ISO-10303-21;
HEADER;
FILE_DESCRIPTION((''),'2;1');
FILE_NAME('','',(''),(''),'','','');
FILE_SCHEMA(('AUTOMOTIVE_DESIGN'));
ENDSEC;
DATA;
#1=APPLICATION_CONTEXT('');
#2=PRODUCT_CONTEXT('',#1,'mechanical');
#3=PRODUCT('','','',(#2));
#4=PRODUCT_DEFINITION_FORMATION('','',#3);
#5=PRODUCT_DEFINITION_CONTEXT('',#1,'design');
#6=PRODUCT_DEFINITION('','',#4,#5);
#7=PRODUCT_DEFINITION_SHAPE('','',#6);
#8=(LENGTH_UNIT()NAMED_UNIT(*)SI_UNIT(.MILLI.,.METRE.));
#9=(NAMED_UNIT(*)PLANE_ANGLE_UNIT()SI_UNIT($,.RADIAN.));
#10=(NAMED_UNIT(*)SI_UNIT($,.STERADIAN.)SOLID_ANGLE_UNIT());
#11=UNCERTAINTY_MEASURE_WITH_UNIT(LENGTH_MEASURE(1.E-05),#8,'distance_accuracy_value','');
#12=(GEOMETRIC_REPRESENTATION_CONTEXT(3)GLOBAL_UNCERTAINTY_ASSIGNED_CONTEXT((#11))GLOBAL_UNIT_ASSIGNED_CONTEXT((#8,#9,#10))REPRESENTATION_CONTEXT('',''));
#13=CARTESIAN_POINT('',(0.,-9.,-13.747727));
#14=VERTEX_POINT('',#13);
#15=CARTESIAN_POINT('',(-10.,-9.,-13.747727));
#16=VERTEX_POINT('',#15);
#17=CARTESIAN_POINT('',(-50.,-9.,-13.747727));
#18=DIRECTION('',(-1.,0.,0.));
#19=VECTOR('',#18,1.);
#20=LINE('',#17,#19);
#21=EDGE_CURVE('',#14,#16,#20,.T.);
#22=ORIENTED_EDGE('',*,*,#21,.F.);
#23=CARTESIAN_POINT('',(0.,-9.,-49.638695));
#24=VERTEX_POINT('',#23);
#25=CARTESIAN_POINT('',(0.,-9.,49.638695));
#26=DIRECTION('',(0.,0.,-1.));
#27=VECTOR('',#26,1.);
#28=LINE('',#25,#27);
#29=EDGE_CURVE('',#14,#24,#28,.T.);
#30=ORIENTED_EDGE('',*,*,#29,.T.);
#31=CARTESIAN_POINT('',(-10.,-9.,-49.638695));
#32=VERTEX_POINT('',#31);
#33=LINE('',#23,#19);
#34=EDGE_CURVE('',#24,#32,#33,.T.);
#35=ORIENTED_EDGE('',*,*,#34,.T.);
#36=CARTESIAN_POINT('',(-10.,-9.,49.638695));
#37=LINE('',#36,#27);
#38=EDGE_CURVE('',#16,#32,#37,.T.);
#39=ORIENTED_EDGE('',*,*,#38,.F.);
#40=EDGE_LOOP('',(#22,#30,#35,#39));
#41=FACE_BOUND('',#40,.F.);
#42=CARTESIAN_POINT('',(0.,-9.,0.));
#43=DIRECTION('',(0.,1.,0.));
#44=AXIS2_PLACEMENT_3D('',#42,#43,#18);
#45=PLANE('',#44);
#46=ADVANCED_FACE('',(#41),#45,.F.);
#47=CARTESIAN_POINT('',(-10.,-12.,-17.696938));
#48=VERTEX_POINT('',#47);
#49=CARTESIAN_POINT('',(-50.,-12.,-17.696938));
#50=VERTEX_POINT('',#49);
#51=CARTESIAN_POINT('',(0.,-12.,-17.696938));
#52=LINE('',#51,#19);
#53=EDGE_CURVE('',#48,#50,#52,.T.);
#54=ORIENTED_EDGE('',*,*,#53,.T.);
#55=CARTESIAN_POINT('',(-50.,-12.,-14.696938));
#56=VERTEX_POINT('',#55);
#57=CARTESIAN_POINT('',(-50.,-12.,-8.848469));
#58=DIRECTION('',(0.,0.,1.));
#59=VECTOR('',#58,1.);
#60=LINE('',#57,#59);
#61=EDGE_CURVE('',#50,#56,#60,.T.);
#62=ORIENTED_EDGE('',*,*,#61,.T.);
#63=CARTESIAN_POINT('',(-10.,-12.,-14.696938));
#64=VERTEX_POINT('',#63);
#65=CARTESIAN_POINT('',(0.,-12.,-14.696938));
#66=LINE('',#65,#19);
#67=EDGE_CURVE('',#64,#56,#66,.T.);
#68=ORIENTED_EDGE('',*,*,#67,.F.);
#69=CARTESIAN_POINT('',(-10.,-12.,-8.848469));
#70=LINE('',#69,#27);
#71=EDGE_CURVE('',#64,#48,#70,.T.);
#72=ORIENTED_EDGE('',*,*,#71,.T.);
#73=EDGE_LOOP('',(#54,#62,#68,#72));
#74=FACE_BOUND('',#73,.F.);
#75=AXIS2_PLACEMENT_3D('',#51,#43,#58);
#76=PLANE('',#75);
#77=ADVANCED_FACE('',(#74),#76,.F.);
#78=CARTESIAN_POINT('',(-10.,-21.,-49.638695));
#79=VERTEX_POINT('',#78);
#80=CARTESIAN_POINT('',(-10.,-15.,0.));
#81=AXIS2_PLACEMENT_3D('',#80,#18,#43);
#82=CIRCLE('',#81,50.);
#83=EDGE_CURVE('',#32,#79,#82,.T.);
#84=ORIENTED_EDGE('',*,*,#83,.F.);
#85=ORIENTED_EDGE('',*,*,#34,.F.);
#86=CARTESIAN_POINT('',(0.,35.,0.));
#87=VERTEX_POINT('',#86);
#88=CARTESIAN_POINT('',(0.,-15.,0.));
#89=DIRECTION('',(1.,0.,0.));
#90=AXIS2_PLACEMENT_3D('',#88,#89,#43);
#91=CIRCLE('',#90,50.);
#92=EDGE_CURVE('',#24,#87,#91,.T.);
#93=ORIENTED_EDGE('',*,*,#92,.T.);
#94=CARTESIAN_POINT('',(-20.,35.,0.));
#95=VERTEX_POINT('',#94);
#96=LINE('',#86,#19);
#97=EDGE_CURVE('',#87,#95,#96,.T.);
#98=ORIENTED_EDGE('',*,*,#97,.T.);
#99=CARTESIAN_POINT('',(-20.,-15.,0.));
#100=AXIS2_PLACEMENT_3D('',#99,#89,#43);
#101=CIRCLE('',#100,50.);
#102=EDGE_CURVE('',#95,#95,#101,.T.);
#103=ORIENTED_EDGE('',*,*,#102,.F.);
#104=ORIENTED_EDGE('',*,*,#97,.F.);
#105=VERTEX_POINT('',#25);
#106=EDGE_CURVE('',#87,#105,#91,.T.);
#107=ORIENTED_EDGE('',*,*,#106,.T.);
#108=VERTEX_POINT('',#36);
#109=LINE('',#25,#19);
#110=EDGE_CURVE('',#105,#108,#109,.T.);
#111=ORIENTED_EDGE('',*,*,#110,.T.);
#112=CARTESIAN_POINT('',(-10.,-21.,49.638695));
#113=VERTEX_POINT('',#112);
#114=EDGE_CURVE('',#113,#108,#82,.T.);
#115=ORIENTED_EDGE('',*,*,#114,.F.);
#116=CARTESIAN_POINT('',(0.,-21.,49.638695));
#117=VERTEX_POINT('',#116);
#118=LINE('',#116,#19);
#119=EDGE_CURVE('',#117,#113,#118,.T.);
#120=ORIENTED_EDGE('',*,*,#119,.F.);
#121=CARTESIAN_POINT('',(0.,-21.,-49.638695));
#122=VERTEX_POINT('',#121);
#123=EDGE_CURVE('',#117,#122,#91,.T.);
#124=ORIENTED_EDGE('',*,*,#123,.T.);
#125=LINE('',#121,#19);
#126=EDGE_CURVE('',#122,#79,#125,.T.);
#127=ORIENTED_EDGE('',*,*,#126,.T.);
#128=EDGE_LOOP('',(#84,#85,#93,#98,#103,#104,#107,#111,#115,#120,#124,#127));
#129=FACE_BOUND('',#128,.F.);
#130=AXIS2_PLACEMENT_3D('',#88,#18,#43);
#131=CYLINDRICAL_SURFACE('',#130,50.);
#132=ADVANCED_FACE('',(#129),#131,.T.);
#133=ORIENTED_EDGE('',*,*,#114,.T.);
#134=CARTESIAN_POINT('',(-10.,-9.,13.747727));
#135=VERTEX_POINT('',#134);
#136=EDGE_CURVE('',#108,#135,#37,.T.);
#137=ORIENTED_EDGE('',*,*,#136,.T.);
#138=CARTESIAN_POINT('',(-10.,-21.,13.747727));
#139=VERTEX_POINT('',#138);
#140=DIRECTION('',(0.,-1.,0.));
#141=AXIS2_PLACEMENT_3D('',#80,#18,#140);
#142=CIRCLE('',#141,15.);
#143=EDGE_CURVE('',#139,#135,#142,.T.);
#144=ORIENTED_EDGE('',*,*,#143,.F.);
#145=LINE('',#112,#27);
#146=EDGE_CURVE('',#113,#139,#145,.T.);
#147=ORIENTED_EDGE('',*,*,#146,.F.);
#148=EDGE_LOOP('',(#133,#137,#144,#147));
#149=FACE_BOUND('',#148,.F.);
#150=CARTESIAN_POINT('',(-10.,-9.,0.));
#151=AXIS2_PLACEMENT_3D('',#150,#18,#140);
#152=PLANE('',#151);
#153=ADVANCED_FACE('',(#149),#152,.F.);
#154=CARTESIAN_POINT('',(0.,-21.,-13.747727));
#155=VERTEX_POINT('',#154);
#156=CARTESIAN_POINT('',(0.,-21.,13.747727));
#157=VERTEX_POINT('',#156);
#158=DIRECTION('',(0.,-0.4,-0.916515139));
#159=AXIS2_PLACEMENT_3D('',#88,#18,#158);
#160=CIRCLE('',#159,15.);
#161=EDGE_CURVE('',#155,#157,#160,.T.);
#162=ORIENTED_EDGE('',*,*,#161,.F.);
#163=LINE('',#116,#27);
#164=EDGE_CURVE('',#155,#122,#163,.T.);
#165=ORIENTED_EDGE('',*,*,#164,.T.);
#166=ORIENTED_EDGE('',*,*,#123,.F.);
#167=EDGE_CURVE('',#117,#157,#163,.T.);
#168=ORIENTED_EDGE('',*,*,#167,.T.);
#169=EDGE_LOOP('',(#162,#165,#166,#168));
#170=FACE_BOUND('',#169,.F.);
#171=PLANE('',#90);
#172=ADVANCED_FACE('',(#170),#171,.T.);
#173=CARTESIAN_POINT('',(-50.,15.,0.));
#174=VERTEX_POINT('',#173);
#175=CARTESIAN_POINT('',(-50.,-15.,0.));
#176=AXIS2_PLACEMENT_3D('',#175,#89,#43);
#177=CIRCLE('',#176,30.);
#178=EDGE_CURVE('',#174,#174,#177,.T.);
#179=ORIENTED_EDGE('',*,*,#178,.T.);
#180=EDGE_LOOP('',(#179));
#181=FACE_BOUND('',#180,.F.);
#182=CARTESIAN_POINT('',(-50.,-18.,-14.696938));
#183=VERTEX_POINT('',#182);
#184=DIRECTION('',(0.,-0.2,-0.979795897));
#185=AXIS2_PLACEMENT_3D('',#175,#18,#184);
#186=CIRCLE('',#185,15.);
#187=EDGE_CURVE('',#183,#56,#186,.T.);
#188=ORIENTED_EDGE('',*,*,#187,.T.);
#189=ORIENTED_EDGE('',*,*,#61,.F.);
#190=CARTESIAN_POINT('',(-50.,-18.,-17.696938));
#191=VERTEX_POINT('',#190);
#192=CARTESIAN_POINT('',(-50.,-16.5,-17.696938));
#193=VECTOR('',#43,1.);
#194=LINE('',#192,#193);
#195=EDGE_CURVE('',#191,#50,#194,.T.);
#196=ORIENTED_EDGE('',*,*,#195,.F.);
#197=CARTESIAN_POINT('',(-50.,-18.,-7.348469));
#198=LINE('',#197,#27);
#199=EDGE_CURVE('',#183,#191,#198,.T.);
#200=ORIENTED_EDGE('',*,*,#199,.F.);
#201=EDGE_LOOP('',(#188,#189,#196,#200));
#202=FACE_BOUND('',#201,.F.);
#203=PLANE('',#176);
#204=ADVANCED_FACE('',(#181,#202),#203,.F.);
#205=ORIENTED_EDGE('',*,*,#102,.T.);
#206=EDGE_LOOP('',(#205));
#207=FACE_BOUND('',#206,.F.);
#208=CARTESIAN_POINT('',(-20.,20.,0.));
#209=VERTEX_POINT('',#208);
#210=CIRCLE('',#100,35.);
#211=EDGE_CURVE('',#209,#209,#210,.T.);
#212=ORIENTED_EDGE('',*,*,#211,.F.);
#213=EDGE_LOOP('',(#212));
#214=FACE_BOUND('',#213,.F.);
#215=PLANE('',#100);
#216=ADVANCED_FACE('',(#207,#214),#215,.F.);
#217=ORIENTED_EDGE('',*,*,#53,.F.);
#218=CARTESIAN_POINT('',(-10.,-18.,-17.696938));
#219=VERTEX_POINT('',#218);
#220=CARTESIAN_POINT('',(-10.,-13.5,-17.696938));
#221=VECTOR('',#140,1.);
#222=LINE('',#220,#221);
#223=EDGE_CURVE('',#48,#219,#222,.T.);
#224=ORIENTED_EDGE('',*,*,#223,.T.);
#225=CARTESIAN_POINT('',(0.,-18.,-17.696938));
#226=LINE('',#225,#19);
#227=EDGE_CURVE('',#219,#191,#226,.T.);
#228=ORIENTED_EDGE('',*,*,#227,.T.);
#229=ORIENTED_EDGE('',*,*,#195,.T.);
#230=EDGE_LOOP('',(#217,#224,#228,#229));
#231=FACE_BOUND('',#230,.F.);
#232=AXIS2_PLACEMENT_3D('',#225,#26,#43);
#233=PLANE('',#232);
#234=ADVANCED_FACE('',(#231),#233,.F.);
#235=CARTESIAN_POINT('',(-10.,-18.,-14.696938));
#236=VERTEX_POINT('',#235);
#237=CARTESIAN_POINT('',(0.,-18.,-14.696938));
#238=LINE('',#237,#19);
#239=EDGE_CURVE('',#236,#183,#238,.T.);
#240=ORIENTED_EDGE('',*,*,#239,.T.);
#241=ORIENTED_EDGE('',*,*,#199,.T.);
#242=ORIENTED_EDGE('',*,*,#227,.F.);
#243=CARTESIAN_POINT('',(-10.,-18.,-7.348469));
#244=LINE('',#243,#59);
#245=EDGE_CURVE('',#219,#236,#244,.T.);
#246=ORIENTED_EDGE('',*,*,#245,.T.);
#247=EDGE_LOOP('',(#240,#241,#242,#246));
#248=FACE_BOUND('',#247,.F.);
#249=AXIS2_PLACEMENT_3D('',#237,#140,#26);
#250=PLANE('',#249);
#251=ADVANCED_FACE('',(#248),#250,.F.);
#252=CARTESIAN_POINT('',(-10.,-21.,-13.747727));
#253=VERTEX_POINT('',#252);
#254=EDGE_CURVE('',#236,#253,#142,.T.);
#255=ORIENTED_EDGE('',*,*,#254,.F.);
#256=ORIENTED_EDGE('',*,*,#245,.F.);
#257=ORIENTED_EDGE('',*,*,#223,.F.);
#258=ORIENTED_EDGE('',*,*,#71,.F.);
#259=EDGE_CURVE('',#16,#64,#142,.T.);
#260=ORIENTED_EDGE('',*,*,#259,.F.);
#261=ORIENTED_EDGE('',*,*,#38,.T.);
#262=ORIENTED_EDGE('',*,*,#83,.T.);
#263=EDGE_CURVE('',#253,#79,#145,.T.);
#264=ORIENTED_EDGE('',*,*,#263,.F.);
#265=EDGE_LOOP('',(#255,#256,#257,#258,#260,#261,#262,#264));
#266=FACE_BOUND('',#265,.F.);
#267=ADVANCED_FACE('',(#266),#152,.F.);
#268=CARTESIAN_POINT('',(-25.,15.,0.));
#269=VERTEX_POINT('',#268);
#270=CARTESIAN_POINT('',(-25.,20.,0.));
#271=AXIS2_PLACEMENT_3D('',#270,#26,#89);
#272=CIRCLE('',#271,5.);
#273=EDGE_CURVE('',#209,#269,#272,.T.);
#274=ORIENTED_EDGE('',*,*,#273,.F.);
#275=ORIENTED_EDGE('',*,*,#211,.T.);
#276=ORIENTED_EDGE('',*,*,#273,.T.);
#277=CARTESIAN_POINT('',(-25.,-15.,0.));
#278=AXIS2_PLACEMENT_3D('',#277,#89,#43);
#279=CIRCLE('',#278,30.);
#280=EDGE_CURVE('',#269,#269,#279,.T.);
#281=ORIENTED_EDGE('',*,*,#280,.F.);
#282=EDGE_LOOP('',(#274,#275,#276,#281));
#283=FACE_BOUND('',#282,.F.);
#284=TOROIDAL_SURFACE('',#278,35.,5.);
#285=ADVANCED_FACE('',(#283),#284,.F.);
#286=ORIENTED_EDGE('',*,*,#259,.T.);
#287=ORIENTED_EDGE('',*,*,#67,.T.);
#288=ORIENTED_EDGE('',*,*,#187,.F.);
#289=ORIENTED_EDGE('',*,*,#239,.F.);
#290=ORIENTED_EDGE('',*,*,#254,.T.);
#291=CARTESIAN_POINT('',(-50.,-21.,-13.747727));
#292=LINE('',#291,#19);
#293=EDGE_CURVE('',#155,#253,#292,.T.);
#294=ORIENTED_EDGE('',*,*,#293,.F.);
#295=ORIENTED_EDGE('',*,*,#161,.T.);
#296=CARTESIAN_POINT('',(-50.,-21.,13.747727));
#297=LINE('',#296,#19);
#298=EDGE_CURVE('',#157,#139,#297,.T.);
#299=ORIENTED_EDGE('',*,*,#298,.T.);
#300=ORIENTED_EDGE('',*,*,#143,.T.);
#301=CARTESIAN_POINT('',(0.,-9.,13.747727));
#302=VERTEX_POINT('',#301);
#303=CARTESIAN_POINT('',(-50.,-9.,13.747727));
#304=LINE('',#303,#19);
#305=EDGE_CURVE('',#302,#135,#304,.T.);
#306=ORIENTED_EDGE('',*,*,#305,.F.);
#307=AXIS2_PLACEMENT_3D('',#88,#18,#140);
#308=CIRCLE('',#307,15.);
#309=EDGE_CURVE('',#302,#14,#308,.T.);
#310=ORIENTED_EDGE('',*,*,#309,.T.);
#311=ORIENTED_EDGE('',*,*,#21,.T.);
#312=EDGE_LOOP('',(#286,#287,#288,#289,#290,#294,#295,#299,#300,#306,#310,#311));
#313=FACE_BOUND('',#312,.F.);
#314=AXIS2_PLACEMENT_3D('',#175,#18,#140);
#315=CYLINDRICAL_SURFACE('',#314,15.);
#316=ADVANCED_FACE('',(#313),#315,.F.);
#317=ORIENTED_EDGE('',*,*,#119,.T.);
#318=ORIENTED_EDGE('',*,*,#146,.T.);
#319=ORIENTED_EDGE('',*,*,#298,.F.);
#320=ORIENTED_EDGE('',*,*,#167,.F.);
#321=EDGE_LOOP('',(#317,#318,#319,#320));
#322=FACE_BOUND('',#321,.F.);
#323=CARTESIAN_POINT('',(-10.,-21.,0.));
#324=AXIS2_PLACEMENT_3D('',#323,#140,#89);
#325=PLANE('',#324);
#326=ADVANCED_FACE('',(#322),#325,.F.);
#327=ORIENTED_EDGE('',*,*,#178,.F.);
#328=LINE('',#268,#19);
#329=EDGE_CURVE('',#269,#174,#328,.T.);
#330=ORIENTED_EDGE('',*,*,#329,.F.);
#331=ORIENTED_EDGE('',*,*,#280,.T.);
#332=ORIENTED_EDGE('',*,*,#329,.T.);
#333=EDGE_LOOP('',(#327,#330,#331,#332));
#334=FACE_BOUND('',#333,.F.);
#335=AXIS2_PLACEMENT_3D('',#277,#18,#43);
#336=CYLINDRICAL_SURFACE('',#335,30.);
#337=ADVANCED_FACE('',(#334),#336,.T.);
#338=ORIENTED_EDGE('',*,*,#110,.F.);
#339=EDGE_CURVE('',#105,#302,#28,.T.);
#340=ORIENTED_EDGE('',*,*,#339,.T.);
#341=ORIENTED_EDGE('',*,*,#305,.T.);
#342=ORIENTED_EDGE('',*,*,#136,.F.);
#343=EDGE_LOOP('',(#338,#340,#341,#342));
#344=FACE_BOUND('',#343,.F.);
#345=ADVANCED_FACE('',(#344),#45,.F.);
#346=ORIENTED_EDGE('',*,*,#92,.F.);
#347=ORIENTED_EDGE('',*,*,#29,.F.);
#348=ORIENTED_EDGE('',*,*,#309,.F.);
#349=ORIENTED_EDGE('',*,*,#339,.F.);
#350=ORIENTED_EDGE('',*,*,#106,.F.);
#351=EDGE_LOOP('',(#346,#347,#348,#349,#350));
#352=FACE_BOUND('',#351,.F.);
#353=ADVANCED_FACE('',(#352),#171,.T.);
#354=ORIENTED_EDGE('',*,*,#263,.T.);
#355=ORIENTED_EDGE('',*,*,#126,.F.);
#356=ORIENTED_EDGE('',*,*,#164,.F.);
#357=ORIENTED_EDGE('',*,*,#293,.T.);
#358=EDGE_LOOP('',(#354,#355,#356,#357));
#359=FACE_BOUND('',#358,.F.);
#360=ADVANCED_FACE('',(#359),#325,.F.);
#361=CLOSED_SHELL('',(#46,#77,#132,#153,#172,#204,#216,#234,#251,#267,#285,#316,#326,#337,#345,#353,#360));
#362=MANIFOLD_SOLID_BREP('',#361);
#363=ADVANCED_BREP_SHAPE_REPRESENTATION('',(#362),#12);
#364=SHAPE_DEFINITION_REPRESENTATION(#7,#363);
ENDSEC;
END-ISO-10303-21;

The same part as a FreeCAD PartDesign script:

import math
import FreeCAD as App
import Part
import Sketcher

doc = App.newDocument("Part")
body = doc.addObject("PartDesign::Body", "Body")

sketch1 = doc.addObject("Sketcher::SketchObject", "Sketch")
body.addObject(sketch1)
sketch1.AttachmentSupport = (doc.XY_Plane, [""])
sketch1.MapMode = "FlatFace"
sketch1.addGeometry(Part.LineSegment(App.Vector(0, 35, 0), App.Vector(-20, 35, 0)), False)
sketch1.addGeometry(Part.LineSegment(App.Vector(-20, 35, 0), App.Vector(-20, 20, 0)), False)
sketch1.addGeometry(Part.ArcOfCircle(Part.Circle(App.Vector(-25, 20, 0), App.Vector(0, 0, 1), 5), math.radians(-90), math.radians(0)), False)
sketch1.addGeometry(Part.LineSegment(App.Vector(-25, 15, 0), App.Vector(-50, 15, 0)), False)
sketch1.addGeometry(Part.LineSegment(App.Vector(-50, 15, 0), App.Vector(-50, -15, 0)), False)
sketch1.addGeometry(Part.LineSegment(App.Vector(-50, -15, 0), App.Vector(-10, -15, 0)), False)
sketch1.addGeometry(Part.LineSegment(App.Vector(-10, -15, 0), App.Vector(-10, -9, 0)), False)
sketch1.addGeometry(Part.LineSegment(App.Vector(-10, -9, 0), App.Vector(0, -9, 0)), False)
sketch1.addGeometry(Part.LineSegment(App.Vector(0, -9, 0), App.Vector(0, 35, 0)), False)
sketch1.addGeometry(Part.LineSegment(App.Vector(-50, -15, 0), App.Vector(0, -15, 0)), True)
sketch1.addConstraint(Sketcher.Constraint("Coincident", 0, 2, 1, 1))
sketch1.addConstraint(Sketcher.Constraint("Tangent", 1, 2, 2, 2))
sketch1.addConstraint(Sketcher.Constraint("Tangent", 2, 1, 3, 1))
sketch1.addConstraint(Sketcher.Constraint("Coincident", 3, 2, 4, 1))
sketch1.addConstraint(Sketcher.Constraint("Coincident", 4, 2, 5, 1))
sketch1.addConstraint(Sketcher.Constraint("Coincident", 5, 2, 6, 1))
sketch1.addConstraint(Sketcher.Constraint("Coincident", 6, 2, 7, 1))
sketch1.addConstraint(Sketcher.Constraint("Coincident", 7, 2, 8, 1))
sketch1.addConstraint(Sketcher.Constraint("Coincident", 8, 2, 0, 1))
sketch1.addConstraint(Sketcher.Constraint("Horizontal", 0))
sketch1.addConstraint(Sketcher.Constraint("Vertical", 1))
sketch1.addConstraint(Sketcher.Constraint("Horizontal", 3))
sketch1.addConstraint(Sketcher.Constraint("Vertical", 4))
sketch1.addConstraint(Sketcher.Constraint("Horizontal", 5))
sketch1.addConstraint(Sketcher.Constraint("Vertical", 6))
sketch1.addConstraint(Sketcher.Constraint("Horizontal", 7))
sketch1.addConstraint(Sketcher.Constraint("Vertical", 8))
sketch1.addConstraint(Sketcher.Constraint("Horizontal", 9))
sketch1.addConstraint(Sketcher.Constraint("Coincident", 9, 1, 4, 2))
sketch1.addConstraint(Sketcher.Constraint("PointOnObject", 7, 2, -2))
sketch1.addConstraint(Sketcher.Constraint("PointOnObject", 9, 2, -2))
sketch1.addConstraint(Sketcher.Constraint("Radius", 2, 5.0))
sketch1.addConstraint(Sketcher.Constraint("DistanceX", 0, 2, 0, 1, 20.0))
sketch1.addConstraint(Sketcher.Constraint("DistanceX", 3, 2, 3, 1, 25.0))
sketch1.addConstraint(Sketcher.Constraint("DistanceX", 5, 1, 5, 2, 40.0))
sketch1.addConstraint(Sketcher.Constraint("DistanceY", 1, 2, 1, 1, 15.0))
sketch1.addConstraint(Sketcher.Constraint("DistanceY", 4, 2, 4, 1, 30.0))
sketch1.addConstraint(Sketcher.Constraint("DistanceY", 6, 1, 6, 2, 6.0))
sketch1.addConstraint(Sketcher.Constraint("DistanceY", -1, 1, 2, 3, 20.0))
revolution = doc.addObject("PartDesign::Revolution", "Revolution")
body.addObject(revolution)
revolution.Profile = sketch1
revolution.ReferenceAxis = (sketch1, ["Axis0"])
revolution.Angle = 360

sketch2 = doc.addObject("Sketcher::SketchObject", "Sketch001")
body.addObject(sketch2)
sketch2.AttachmentSupport = (doc.XY_Plane, [""])
sketch2.MapMode = "FlatFace"
sketch2.addGeometry(Part.LineSegment(App.Vector(0, -21, 0), App.Vector(0, -9, 0)), False)
sketch2.addGeometry(Part.LineSegment(App.Vector(0, -9, 0), App.Vector(-10, -9, 0)), False)
sketch2.addGeometry(Part.LineSegment(App.Vector(-10, -9, 0), App.Vector(-10, -21, 0)), False)
sketch2.addGeometry(Part.LineSegment(App.Vector(-10, -21, 0), App.Vector(0, -21, 0)), False)
sketch2.addConstraint(Sketcher.Constraint("Coincident", 0, 2, 1, 1))
sketch2.addConstraint(Sketcher.Constraint("Coincident", 1, 2, 2, 1))
sketch2.addConstraint(Sketcher.Constraint("Coincident", 2, 2, 3, 1))
sketch2.addConstraint(Sketcher.Constraint("Coincident", 3, 2, 0, 1))
sketch2.addConstraint(Sketcher.Constraint("Vertical", 0))
sketch2.addConstraint(Sketcher.Constraint("Horizontal", 1))
sketch2.addConstraint(Sketcher.Constraint("Vertical", 2))
sketch2.addConstraint(Sketcher.Constraint("Horizontal", 3))
sketch2.addConstraint(Sketcher.Constraint("PointOnObject", 0, 2, -2))
sketch2.addConstraint(Sketcher.Constraint("DistanceX", 1, 2, 1, 1, 10.0))
sketch2.addConstraint(Sketcher.Constraint("DistanceY", 0, 1, 0, 2, 12.0))
sketch2.addConstraint(Sketcher.Constraint("DistanceY", 0, 2, -1, 1, 9.0))
pocket1 = doc.addObject("PartDesign::Pocket", "Pocket")
body.addObject(pocket1)
pocket1.Profile = sketch2
pocket1.Type = "ThroughAll"
pocket1.Midplane = True

sketch3 = doc.addObject("Sketcher::SketchObject", "Sketch002")
body.addObject(sketch3)
sketch3.AttachmentSupport = (doc.YZ_Plane, [""])
sketch3.MapMode = "FlatFace"
sketch3.AttachmentOffset = App.Placement(App.Vector(0, 0, -50), App.Rotation())
sketch3.addGeometry(Part.Circle(App.Vector(-15, 0, 0), App.Vector(0, 0, 1), 15), False)
sketch3.addConstraint(Sketcher.Constraint("PointOnObject", 0, 3, -1))
sketch3.addConstraint(Sketcher.Constraint("Diameter", 0, 30.0))
sketch3.addConstraint(Sketcher.Constraint("DistanceX", 0, 3, -1, 1, 15.0))
pocket2 = doc.addObject("PartDesign::Pocket", "Pocket001")
body.addObject(pocket2)
pocket2.Profile = sketch3
pocket2.Type = "ThroughAll"
pocket2.Reversed = True

sketch4 = doc.addObject("Sketcher::SketchObject", "Sketch003")
body.addObject(sketch4)
sketch4.AttachmentSupport = (doc.YZ_Plane, [""])
sketch4.MapMode = "FlatFace"
sketch4.addGeometry(Part.LineSegment(App.Vector(-12, -17.7, 0), App.Vector(-12, -14.7, 0)), False)
sketch4.addGeometry(Part.ArcOfCircle(Part.Circle(App.Vector(-15, 0, 0), App.Vector(0, 0, 1), 15), math.radians(-102), math.radians(-78)), False)
sketch4.addGeometry(Part.LineSegment(App.Vector(-18, -14.7, 0), App.Vector(-18, -17.7, 0)), False)
sketch4.addGeometry(Part.LineSegment(App.Vector(-18, -17.7, 0), App.Vector(-12, -17.7, 0)), False)
sketch4.addConstraint(Sketcher.Constraint("Coincident", 0, 2, 1, 2))
sketch4.addConstraint(Sketcher.Constraint("Coincident", 1, 1, 2, 1))
sketch4.addConstraint(Sketcher.Constraint("Coincident", 2, 2, 3, 1))
sketch4.addConstraint(Sketcher.Constraint("Coincident", 3, 2, 0, 1))
sketch4.addConstraint(Sketcher.Constraint("Vertical", 0))
sketch4.addConstraint(Sketcher.Constraint("Vertical", 2))
sketch4.addConstraint(Sketcher.Constraint("Horizontal", 3))
sketch4.addConstraint(Sketcher.Constraint("PointOnObject", 1, 3, -1))
sketch4.addConstraint(Sketcher.Constraint("Horizontal", 0, 2, 1, 1))
sketch4.addConstraint(Sketcher.Constraint("Radius", 1, 15.0))
sketch4.addConstraint(Sketcher.Constraint("DistanceX", 3, 1, 3, 2, 6.0))
sketch4.addConstraint(Sketcher.Constraint("DistanceY", 0, 1, 0, 2, 3.0))
sketch4.addConstraint(Sketcher.Constraint("DistanceX", 1, 3, -1, 1, 15.0))
pocket3 = doc.addObject("PartDesign::Pocket", "Pocket002")
body.addObject(pocket3)
pocket3.Profile = sketch4
pocket3.Type = "ThroughAll"

doc.recompute()
